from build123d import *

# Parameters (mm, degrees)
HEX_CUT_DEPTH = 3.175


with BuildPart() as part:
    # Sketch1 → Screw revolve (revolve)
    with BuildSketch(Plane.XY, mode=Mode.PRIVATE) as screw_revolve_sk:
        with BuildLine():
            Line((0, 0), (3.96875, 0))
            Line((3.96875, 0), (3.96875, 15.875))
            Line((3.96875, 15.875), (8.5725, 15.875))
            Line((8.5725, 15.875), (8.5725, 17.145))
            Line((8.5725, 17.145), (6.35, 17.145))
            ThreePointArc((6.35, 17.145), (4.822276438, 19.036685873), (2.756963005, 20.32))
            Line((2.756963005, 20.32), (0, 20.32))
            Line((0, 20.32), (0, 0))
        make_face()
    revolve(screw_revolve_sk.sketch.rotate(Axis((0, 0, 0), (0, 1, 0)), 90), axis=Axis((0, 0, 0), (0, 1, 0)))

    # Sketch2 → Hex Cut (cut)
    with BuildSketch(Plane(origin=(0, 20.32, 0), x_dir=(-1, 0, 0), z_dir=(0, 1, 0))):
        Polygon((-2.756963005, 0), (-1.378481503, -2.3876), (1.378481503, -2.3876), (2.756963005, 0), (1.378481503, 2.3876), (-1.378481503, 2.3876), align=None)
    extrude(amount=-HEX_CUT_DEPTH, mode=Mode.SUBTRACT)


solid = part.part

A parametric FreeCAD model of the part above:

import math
import FreeCAD as App
import Part
import Sketcher
Q = App.Units.Quantity

doc = App.newDocument("Part")
params = doc.addObject("Spreadsheet::Sheet", "Params")
for row, (alias, value) in enumerate([
    ("sketch1_height", "0.8 in"),
    ("sketch1_height2", "0.05 in"),
    ("sketch1_width", "0.15625 in"),
    ("sketch1_height3", "0.625 in"),
    ("revolution_angle", "360 deg"),
    ("pocket1_length", "0.125 in"),
], start=1):
    params.set(f"A{row}", alias)
    params.set(f"B{row}", "=" + value)
    params.setAlias(f"B{row}", alias)

body = doc.addObject("PartDesign::Body", "Body")

sketch1 = doc.addObject("Sketcher::SketchObject", "Sketch")
body.addObject(sketch1)
sketch1.AttachmentSupport = (doc.XY_Plane, [""])
sketch1.MapMode = "FlatFace"
sketch1.addGeometry(Part.LineSegment(App.Vector(0, 0, 0), App.Vector(4, 0, 0)), False)
sketch1.addGeometry(Part.LineSegment(App.Vector(4, 0, 0), App.Vector(4, 15.9, 0)), False)
sketch1.addGeometry(Part.LineSegment(App.Vector(4, 15.9, 0), App.Vector(8.6, 15.9, 0)), False)
sketch1.addGeometry(Part.LineSegment(App.Vector(8.6, 15.9, 0), App.Vector(8.6, 17.1, 0)), False)
sketch1.addGeometry(Part.LineSegment(App.Vector(8.6, 17.1, 0), App.Vector(6.3, 17.1, 0)), False)
sketch1.addGeometry(Part.ArcOfCircle(Part.Circle(App.Vector(0, 13.6, 0), App.Vector(0, 0, 1), 7.3), math.radians(29), math.radians(68)), False)
sketch1.addGeometry(Part.LineSegment(App.Vector(2.8, 20.3, 0), App.Vector(0, 20.3, 0)), False)
sketch1.addGeometry(Part.LineSegment(App.Vector(0, 20.3, 0), App.Vector(0, 0, 0)), False)
sketch1.addConstraint(Sketcher.Constraint("Coincident", 0, 2, 1, 1))
sketch1.addConstraint(Sketcher.Constraint("Coincident", 1, 2, 2, 1))
sketch1.addConstraint(Sketcher.Constraint("Coincident", 2, 2, 3, 1))
sketch1.addConstraint(Sketcher.Constraint("Coincident", 3, 2, 4, 1))
sketch1.addConstraint(Sketcher.Constraint("Coincident", 4, 2, 5, 1))
sketch1.addConstraint(Sketcher.Constraint("Coincident", 5, 2, 6, 1))
sketch1.addConstraint(Sketcher.Constraint("Coincident", 6, 2, 7, 1))
sketch1.addConstraint(Sketcher.Constraint("Coincident", 7, 2, 0, 1))
sketch1.addConstraint(Sketcher.Constraint("Horizontal", 0))
sketch1.addConstraint(Sketcher.Constraint("Vertical", 1))
sketch1.addConstraint(Sketcher.Constraint("Horizontal", 2))
sketch1.addConstraint(Sketcher.Constraint("Vertical", 3))
sketch1.addConstraint(Sketcher.Constraint("Horizontal", 4))
sketch1.addConstraint(Sketcher.Constraint("Horizontal", 6))
sketch1.addConstraint(Sketcher.Constraint("Vertical", 7))
sketch1.addConstraint(Sketcher.Constraint("Coincident", 7, 2, -1, 1))
sketch1.addConstraint(Sketcher.Constraint("PointOnObject", 5, 3, -2))
sketch1.addConstraint(Sketcher.Constraint("DistanceY", 7, 2, 7, 1, Q("0.8 in")))
sketch1.addConstraint(Sketcher.Constraint("DistanceY", 3, 1, 3, 2, Q("0.05 in")))
sketch1.addConstraint(Sketcher.Constraint("DistanceX", 0, 1, 0, 2, Q("0.15625 in")))
sketch1.addConstraint(Sketcher.Constraint("DistanceY", 1, 1, 1, 2, Q("0.625 in")))
sketch1.addConstraint(Sketcher.Constraint("DistanceX", -1, 1, 4, 2, Q("0.25 in")))
sketch1.addConstraint(Sketcher.Constraint("DistanceX", 4, 2, 4, 1, Q("0.0875 in")))
sketch1.addConstraint(Sketcher.Constraint("Radius", 5, 7.282541))
sketch1.setExpression("Constraints[17]", "Params.sketch1_height")
sketch1.setExpression("Constraints[18]", "Params.sketch1_height2")
sketch1.setExpression("Constraints[19]", "Params.sketch1_width")
sketch1.setExpression("Constraints[20]", "Params.sketch1_height3")
revolution = doc.addObject("PartDesign::Revolution", "Revolution")
body.addObject(revolution)
revolution.Profile = sketch1
revolution.ReferenceAxis = (sketch1, ["V_Axis"])
revolution.setExpression("Angle", "Params.revolution_angle")

sketch2 = doc.addObject("Sketcher::SketchObject", "Sketch001")
body.addObject(sketch2)
sketch2.AttachmentSupport = (doc.XZ_Plane, [""])
sketch2.MapMode = "FlatFace"
sketch2.AttachmentOffset = App.Placement(App.Vector(0, 0, -0.8 * 25.4), App.Rotation())
sketch2.addGeometry(Part.LineSegment(App.Vector(2.8, 0, 0), App.Vector(1.4, -2.4, 0)), False)
sketch2.addGeometry(Part.LineSegment(App.Vector(1.4, -2.4, 0), App.Vector(-1.4, -2.4, 0)), False)
sketch2.addGeometry(Part.LineSegment(App.Vector(-1.4, -2.4, 0), App.Vector(-2.8, 0, 0)), False)
sketch2.addGeometry(Part.LineSegment(App.Vector(-2.8, 0, 0), App.Vector(-1.4, 2.4, 0)), False)
sketch2.addGeometry(Part.LineSegment(App.Vector(-1.4, 2.4, 0), App.Vector(1.4, 2.4, 0)), False)
sketch2.addGeometry(Part.LineSegment(App.Vector(1.4, 2.4, 0), App.Vector(2.8, 0, 0)), False)
sketch2.addConstraint(Sketcher.Constraint("Coincident", 0, 2, 1, 1))
sketch2.addConstraint(Sketcher.Constraint("Coincident", 1, 2, 2, 1))
sketch2.addConstraint(Sketcher.Constraint("Coincident", 2, 2, 3, 1))
sketch2.addConstraint(Sketcher.Constraint("Coincident", 3, 2, 4, 1))
sketch2.addConstraint(Sketcher.Constraint("Coincident", 4, 2, 5, 1))
sketch2.addConstraint(Sketcher.Constraint("Coincident", 5, 2, 0, 1))
sketch2.addConstraint(Sketcher.Constraint("Horizontal", 1))
sketch2.addConstraint(Sketcher.Constraint("Horizontal", 4))
sketch2.addConstraint(Sketcher.Constraint("Symmetric", 0, 2, 3, 2, -1, 1))
sketch2.addConstraint(Sketcher.Constraint("Symmetric", 2, 2, 5, 2, -1, 1))
sketch2.addConstraint(Sketcher.Constraint("PointOnObject", 2, 2, -1))
sketch2.addConstraint(Sketcher.Constraint("Parallel", 2, 5))
sketch2.addConstraint(Sketcher.Constraint("Vertical", 1, 2, 3, 2))
sketch2.addConstraint(Sketcher.Constraint("Angle", 0, Q("-120 deg")))
sketch2.addConstraint(Sketcher.Constraint("DistanceY", 0, 2, -1, 1, Q("0.094 in")))
sketch2.addConstraint(Sketcher.Constraint("DistanceX", 1, 2, 1, 1, 2.756963))
pocket1 = doc.addObject("PartDesign::Pocket", "Pocket")
body.addObject(pocket1)
pocket1.Profile = sketch2
pocket1.setExpression("Length", "Params.pocket1_length")
pocket1.Reversed = True

doc.recompute()
